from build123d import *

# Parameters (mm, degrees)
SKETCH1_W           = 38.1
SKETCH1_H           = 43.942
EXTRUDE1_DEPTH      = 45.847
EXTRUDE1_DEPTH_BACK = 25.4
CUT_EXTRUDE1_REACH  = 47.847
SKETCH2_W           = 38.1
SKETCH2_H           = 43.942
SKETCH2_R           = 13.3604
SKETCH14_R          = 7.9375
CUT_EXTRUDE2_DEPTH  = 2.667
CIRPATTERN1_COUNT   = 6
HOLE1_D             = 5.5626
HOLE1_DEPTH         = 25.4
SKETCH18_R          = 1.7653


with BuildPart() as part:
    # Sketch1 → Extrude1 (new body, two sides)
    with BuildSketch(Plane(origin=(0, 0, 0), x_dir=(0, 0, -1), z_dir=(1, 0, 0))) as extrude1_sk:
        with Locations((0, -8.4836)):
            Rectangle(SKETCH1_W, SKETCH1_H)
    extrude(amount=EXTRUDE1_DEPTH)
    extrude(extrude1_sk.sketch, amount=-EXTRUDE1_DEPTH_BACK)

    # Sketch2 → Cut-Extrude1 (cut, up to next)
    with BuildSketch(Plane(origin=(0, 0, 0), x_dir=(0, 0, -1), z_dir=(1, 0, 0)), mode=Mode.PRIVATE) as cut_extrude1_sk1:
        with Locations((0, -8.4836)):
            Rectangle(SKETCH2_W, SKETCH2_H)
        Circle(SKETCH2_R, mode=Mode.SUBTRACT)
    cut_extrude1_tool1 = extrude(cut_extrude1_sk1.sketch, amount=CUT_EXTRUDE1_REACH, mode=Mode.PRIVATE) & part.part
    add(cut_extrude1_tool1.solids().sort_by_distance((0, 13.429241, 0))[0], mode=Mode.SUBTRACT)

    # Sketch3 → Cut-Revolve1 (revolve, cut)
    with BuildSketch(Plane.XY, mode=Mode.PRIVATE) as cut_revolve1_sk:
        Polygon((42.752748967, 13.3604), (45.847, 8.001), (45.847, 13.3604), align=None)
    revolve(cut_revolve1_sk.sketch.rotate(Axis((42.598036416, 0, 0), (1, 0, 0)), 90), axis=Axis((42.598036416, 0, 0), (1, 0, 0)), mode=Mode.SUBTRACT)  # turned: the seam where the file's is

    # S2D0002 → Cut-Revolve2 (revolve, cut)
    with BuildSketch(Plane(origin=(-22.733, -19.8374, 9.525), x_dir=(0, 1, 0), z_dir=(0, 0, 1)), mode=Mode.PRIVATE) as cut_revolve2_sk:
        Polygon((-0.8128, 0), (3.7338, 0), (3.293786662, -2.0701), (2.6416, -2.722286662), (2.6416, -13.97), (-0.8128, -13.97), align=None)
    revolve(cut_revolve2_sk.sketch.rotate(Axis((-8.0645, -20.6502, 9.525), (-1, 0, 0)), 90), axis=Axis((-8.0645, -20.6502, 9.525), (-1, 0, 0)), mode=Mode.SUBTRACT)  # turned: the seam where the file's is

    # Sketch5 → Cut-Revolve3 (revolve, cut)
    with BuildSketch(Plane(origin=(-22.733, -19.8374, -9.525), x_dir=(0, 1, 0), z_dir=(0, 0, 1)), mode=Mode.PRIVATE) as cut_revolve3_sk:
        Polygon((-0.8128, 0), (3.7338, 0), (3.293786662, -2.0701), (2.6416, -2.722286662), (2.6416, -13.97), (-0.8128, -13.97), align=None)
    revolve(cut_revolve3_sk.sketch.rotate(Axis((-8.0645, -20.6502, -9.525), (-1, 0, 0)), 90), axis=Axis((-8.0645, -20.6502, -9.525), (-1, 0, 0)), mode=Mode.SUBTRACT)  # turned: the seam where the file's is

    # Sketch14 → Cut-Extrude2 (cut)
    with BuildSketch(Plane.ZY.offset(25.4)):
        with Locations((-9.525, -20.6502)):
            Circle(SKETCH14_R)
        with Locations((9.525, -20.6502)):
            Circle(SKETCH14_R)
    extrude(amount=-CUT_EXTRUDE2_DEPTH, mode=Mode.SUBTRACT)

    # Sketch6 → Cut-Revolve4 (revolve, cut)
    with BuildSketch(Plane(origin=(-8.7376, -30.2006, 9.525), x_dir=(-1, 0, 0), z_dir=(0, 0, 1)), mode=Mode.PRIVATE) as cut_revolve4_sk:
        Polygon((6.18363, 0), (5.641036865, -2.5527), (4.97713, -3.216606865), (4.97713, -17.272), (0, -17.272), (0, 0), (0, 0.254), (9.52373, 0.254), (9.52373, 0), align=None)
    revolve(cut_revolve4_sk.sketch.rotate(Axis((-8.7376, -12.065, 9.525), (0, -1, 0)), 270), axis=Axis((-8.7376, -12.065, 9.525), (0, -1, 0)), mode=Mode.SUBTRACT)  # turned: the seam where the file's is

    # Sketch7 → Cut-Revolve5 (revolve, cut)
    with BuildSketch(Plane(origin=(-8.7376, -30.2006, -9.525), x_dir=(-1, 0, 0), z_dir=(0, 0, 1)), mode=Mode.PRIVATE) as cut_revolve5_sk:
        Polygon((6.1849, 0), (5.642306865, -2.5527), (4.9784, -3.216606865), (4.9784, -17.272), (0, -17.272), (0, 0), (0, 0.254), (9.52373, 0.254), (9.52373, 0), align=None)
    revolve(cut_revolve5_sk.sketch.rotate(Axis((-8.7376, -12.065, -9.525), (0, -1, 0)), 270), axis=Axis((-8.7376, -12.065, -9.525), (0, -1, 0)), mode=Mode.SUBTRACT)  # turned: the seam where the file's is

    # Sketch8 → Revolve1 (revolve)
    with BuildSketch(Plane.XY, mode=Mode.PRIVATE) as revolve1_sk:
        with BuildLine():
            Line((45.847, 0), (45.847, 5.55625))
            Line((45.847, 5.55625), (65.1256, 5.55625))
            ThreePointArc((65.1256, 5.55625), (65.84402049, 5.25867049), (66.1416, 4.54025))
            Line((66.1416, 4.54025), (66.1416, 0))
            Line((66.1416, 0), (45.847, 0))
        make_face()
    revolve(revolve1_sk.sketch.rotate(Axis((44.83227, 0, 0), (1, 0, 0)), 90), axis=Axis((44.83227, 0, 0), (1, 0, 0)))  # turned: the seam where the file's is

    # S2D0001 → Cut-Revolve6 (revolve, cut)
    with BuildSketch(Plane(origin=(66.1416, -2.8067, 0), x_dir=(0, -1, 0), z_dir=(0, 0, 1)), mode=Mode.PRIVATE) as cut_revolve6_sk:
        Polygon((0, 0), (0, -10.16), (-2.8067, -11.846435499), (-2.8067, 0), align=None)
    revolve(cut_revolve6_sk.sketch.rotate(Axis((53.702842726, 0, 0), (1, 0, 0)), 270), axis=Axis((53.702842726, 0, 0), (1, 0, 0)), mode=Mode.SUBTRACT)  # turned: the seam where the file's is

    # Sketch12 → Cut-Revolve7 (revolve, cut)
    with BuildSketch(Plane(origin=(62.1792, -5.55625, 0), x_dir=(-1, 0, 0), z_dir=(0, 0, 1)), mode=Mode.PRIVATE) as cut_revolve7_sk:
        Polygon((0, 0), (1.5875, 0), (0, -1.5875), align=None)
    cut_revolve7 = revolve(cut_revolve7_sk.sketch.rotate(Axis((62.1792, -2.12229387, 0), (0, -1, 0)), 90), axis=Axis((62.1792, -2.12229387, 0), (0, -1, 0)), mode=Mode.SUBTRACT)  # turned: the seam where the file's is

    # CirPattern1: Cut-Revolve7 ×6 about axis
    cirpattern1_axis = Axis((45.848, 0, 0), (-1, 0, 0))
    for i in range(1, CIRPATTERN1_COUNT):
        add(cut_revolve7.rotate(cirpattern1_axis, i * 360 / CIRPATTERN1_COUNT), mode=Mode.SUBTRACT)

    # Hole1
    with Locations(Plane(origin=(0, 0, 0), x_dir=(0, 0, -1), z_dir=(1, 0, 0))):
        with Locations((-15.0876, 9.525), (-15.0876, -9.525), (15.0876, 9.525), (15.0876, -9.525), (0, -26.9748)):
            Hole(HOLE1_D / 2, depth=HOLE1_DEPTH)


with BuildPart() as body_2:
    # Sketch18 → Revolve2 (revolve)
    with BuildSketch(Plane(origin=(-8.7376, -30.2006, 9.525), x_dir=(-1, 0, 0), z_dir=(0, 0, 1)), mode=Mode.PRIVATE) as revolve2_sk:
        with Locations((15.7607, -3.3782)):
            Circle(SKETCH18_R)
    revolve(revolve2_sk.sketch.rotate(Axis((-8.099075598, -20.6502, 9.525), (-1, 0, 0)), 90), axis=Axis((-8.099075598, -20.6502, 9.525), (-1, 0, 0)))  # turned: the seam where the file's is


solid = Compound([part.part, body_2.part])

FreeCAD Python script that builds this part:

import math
import FreeCAD as App
import Part
import Sketcher

V = App.Vector
Q = App.Units.Quantity

doc = App.newDocument("Part")
body = doc.addObject("PartDesign::Body", "Body")

# Sketch on YZ plane
sketch1 = doc.addObject("Sketcher::SketchObject", "Sketch")
body.addObject(sketch1)
sketch1.AttachmentSupport = (doc.YZ_Plane, [""])
sketch1.MapMode = "FlatFace"
sketch1.addGeometry([
    Part.LineSegment(V(13, 19, 0), V(-30, 19, 0)),
    Part.LineSegment(V(-30, 19, 0), V(-30, -19, 0)),
    Part.LineSegment(V(-30, -19, 0), V(13, -19, 0)),
    Part.LineSegment(V(13, -19, 0), V(13, 19, 0)),
], False)
sketch1.addConstraint([
    Sketcher.Constraint("Coincident", 0, 2, 1, 1),
    Sketcher.Constraint("Coincident", 1, 2, 2, 1),
    Sketcher.Constraint("Coincident", 2, 2, 3, 1),
    Sketcher.Constraint("Coincident", 3, 2, 0, 1),
    Sketcher.Constraint("Horizontal", 0),
    Sketcher.Constraint("Vertical", 1),
    Sketcher.Constraint("Horizontal", 2),
    Sketcher.Constraint("Vertical", 3),
    Sketcher.Constraint("DistanceY", 1, 2, 1, 1, Q("1.5 in")),
    Sketcher.Constraint("DistanceX", 0, 2, 0, 1, Q("1.73 in")),
    Sketcher.Constraint("DistanceY", -1, 1, 0, 2, Q("0.75 in")),
    Sketcher.Constraint("DistanceX", 0, 2, -1, 1, Q("1.199 in")),
])
pad1 = doc.addObject("PartDesign::Pad", "Pad")
body.addObject(pad1)
pad1.Profile = sketch1
pad1.Type = "TwoLengths"
pad1.Length = Q("1.805 in")
pad1.Length2 = Q("1 in")

# Sketch on YZ plane
sketch2 = doc.addObject("Sketcher::SketchObject", "Sketch001")
body.addObject(sketch2)
sketch2.AttachmentSupport = (doc.YZ_Plane, [""])
sketch2.MapMode = "FlatFace"
sketch2.addGeometry([
    Part.LineSegment(V(13, 19, 0), V(-30, 19, 0)),  # 0
    Part.LineSegment(V(-30, 19, 0), V(-30, -19, 0)),  # 1
    Part.LineSegment(V(-30, -19, 0), V(13, -19, 0)),  # 2
    Part.LineSegment(V(13, -19, 0), V(13, 19, 0)),  # 3
    Part.Circle(V(0, 0, 0), V(0, 0, 1), 13),  # 4
], False)
sketch2.addConstraint([
    Sketcher.Constraint("Coincident", 0, 2, 1, 1),
    Sketcher.Constraint("Coincident", 1, 2, 2, 1),
    Sketcher.Constraint("Coincident", 2, 2, 3, 1),
    Sketcher.Constraint("Coincident", 3, 2, 0, 1),
    Sketcher.Constraint("Horizontal", 0),
    Sketcher.Constraint("Vertical", 1),
    Sketcher.Constraint("Horizontal", 2),
    Sketcher.Constraint("Vertical", 3),
    Sketcher.Constraint("Coincident", 4, 3, -1, 1),
    Sketcher.Constraint("Diameter", 4, Q("1.052 in")),
    Sketcher.Constraint("DistanceY", 1, 2, 1, 1, Q("1.5 in")),
    Sketcher.Constraint("DistanceX", 0, 2, 0, 1, Q("1.73 in")),
    Sketcher.Constraint("DistanceY", -1, 1, 0, 2, Q("0.75 in")),
    Sketcher.Constraint("DistanceX", 0, 2, -1, 1, Q("1.199 in")),
])
pocket1 = doc.addObject("PartDesign::Pocket", "Pocket")
body.addObject(pocket1)
pocket1.Profile = sketch2
pocket1.Type = "UpToFirst"
pocket1.Reversed = True

# Sketch on XY plane
sketch3 = doc.addObject("Sketcher::SketchObject", "Sketch002")
body.addObject(sketch3)
sketch3.AttachmentSupport = (doc.XY_Plane, [""])
sketch3.MapMode = "FlatFace"
sketch3.addGeometry([
    Part.LineSegment(V(42.8, 13.4, 0), V(45.8, 8, 0)),
    Part.LineSegment(V(45.8, 8, 0), V(45.8, 13.4, 0)),
    Part.LineSegment(V(45.8, 13.4, 0), V(42.8, 13.4, 0)),
], False)
sketch3.addConstraint([
    Sketcher.Constraint("Coincident", 0, 2, 1, 1),
    Sketcher.Constraint("Coincident", 1, 2, 2, 1),
    Sketcher.Constraint("Coincident", 2, 2, 0, 1),
    Sketcher.Constraint("Vertical", 1),
    Sketcher.Constraint("Horizontal", 2),
    Sketcher.Constraint("Angle", 0, Q("-60 deg")),
    Sketcher.Constraint("DistanceY", 1, 1, 1, 2, Q("0.211 in")),
    Sketcher.Constraint("DistanceX", -1, 1, 0, 2, Q("1.805 in")),
    Sketcher.Constraint("DistanceY", -1, 1, 0, 2, Q("0.315 in")),
])
groove = doc.addObject("PartDesign::Groove", "Groove")
body.addObject(groove)
groove.Profile = sketch3
groove.ReferenceAxis = (sketch3, ["H_Axis"])
groove.Angle = 360

# Sketch on XY plane
sketch4 = doc.addObject("Sketcher::SketchObject", "Sketch003")
body.addObject(sketch4)
sketch4.AttachmentSupport = (doc.XY_Plane, [""])
sketch4.MapMode = "FlatFace"
sketch4.AttachmentOffset = App.Placement(V(0, 0, 0.375 * 25.4), App.Rotation())
sketch4.addGeometry([
    Part.LineSegment(V(-22.7, -16.1, 0), V(-22.7, -20.7, 0)),  # 0
    Part.LineSegment(V(-22.7, -20.7, 0), V(-8.8, -20.7, 0)),  # 1
    Part.LineSegment(V(-8.8, -20.7, 0), V(-8.8, -17.2, 0)),  # 2
    Part.LineSegment(V(-8.8, -17.2, 0), V(-20, -17.2, 0)),  # 3
    Part.LineSegment(V(-20, -17.2, 0), V(-20.7, -16.5, 0)),  # 4
    Part.LineSegment(V(-20.7, -16.5, 0), V(-22.7, -16.1, 0)),  # 5
], False)
sketch4.addGeometry(Part.LineSegment(V(-8.8, -20.7, 0), V(-22.7, -20.7, 0)), True)  # axis
sketch4.addConstraint([
    Sketcher.Constraint("Coincident", 0, 2, 1, 1),
    Sketcher.Constraint("Coincident", 1, 2, 2, 1),
    Sketcher.Constraint("Coincident", 2, 2, 3, 1),
    Sketcher.Constraint("Coincident", 3, 2, 4, 1),
    Sketcher.Constraint("Coincident", 4, 2, 5, 1),
    Sketcher.Constraint("Coincident", 5, 2, 0, 1),
    Sketcher.Constraint("Vertical", 0),
    Sketcher.Constraint("Horizontal", 1),
    Sketcher.Constraint("Vertical", 2),
    Sketcher.Constraint("Horizontal", 3),
    Sketcher.Constraint("Horizontal", 6),
    Sketcher.Constraint("Coincident", 6, 1, 1, 2),
    Sketcher.Constraint("Vertical", 5, 2, 6, 2),
    Sketcher.Constraint("Angle", 4, Q("135 deg")),
    Sketcher.Constraint("Angle", 5, Q("168 deg")),
    Sketcher.Constraint("DistanceX", 1, 1, 1, 2, Q("0.55 in")),
    Sketcher.Constraint("DistanceY", 0, 2, 0, 1, Q("0.179 in")),
    Sketcher.Constraint("DistanceY", 2, 1, 2, 2, Q("0.136 in")),
    Sketcher.Constraint("DistanceX", 0, 2, -1, 1, Q("0.895 in")),
    Sketcher.Constraint("DistanceY", 0, 2, -1, 1, Q("0.813 in")),
    Sketcher.Constraint("DistanceX", 4, 2, -1, 1, Q("0.8135 in")),
])
groove2 = doc.addObject("PartDesign::Groove", "Groove001")
body.addObject(groove2)
groove2.Profile = sketch4
groove2.ReferenceAxis = (sketch4, ["Axis0"])
groove2.Angle = 360

# Sketch on XY plane
sketch5 = doc.addObject("Sketcher::SketchObject", "Sketch004")
body.addObject(sketch5)
sketch5.AttachmentSupport = (doc.XY_Plane, [""])
sketch5.MapMode = "FlatFace"
sketch5.AttachmentOffset = App.Placement(V(0, 0, -0.375 * 25.4), App.Rotation())
sketch5.addGeometry([
    Part.LineSegment(V(-22.7, -16.1, 0), V(-22.7, -20.7, 0)),  # 0
    Part.LineSegment(V(-22.7, -20.7, 0), V(-8.8, -20.7, 0)),  # 1
    Part.LineSegment(V(-8.8, -20.7, 0), V(-8.8, -17.2, 0)),  # 2
    Part.LineSegment(V(-8.8, -17.2, 0), V(-20, -17.2, 0)),  # 3
    Part.LineSegment(V(-20, -17.2, 0), V(-20.7, -16.5, 0)),  # 4
    Part.LineSegment(V(-20.7, -16.5, 0), V(-22.7, -16.1, 0)),  # 5
], False)
sketch5.addGeometry(Part.LineSegment(V(-8.8, -20.7, 0), V(-22.7, -20.7, 0)), True)  # axis
sketch5.addConstraint([
    Sketcher.Constraint("Coincident", 0, 2, 1, 1),
    Sketcher.Constraint("Coincident", 1, 2, 2, 1),
    Sketcher.Constraint("Coincident", 2, 2, 3, 1),
    Sketcher.Constraint("Coincident", 3, 2, 4, 1),
    Sketcher.Constraint("Coincident", 4, 2, 5, 1),
    Sketcher.Constraint("Coincident", 5, 2, 0, 1),
    Sketcher.Constraint("Vertical", 0),
    Sketcher.Constraint("Horizontal", 1),
    Sketcher.Constraint("Vertical", 2),
    Sketcher.Constraint("Horizontal", 3),
    Sketcher.Constraint("Horizontal", 6),
    Sketcher.Constraint("Coincident", 6, 1, 1, 2),
    Sketcher.Constraint("Vertical", 5, 2, 6, 2),
    Sketcher.Constraint("Angle", 4, Q("135 deg")),
    Sketcher.Constraint("Angle", 5, Q("168 deg")),
    Sketcher.Constraint("DistanceX", 1, 1, 1, 2, Q("0.55 in")),
    Sketcher.Constraint("DistanceY", 0, 2, 0, 1, Q("0.179 in")),
    Sketcher.Constraint("DistanceY", 2, 1, 2, 2, Q("0.136 in")),
    Sketcher.Constraint("DistanceX", 0, 2, -1, 1, Q("0.895 in")),
    Sketcher.Constraint("DistanceY", 0, 2, -1, 1, Q("0.813 in")),
    Sketcher.Constraint("DistanceX", 4, 2, -1, 1, Q("0.8135 in")),
])
groove3 = doc.addObject("PartDesign::Groove", "Groove002")
body.addObject(groove3)
groove3.Profile = sketch5
groove3.ReferenceAxis = (sketch5, ["Axis0"])
groove3.Angle = 360

# Sketch on YZ plane
sketch6 = doc.addObject("Sketcher::SketchObject", "Sketch005")
body.addObject(sketch6)
sketch6.AttachmentSupport = (doc.YZ_Plane, [""])
sketch6.MapMode = "FlatFace"
sketch6.AttachmentOffset = App.Placement(V(0, 0, -1 * 25.4), App.Rotation())
sketch6.addGeometry([
    Part.Circle(V(-21, -10, 0), V(0, 0, 1), 8),
    Part.Circle(V(-21, 10, 0), V(0, 0, 1), 8),
], False)
sketch6.addConstraint([
    Sketcher.Constraint("Equal", 0, 1),
    Sketcher.Constraint("Symmetric", 0, 3, 1, 3, -1),
    Sketcher.Constraint("Diameter", 0, Q("0.625 in")),
    Sketcher.Constraint("DistanceY", 0, 3, 1, 3, Q("0.75 in")),
    Sketcher.Constraint("DistanceX", 0, 3, -1, 1, Q("0.813 in")),
])
pocket2 = doc.addObject("PartDesign::Pocket", "Pocket001")
body.addObject(pocket2)
pocket2.Profile = sketch6
pocket2.Length = Q("0.105 in")
pocket2.Reversed = True

# Sketch on XY plane
sketch7 = doc.addObject("Sketcher::SketchObject", "Sketch006")
body.addObject(sketch7)
sketch7.AttachmentSupport = (doc.XY_Plane, [""])
sketch7.MapMode = "FlatFace"
sketch7.AttachmentOffset = App.Placement(V(0, 0, 0.375 * 25.4), App.Rotation())
sketch7.addGeometry([
    Part.LineSegment(V(-14.38, -27.65, 0), V(-14.92, -30.2, 0)),  # 0
    Part.LineSegment(V(-14.92, -30.2, 0), V(-18.26, -30.2, 0)),  # 1
    Part.LineSegment(V(-18.26, -30.2, 0), V(-18.26, -30.45, 0)),  # 2
    Part.LineSegment(V(-18.26, -30.45, 0), V(-8.74, -30.45, 0)),  # 3
    Part.LineSegment(V(-8.74, -30.45, 0), V(-8.74, -12.93, 0)),  # 4
    Part.LineSegment(V(-8.74, -12.93, 0), V(-13.71, -12.93, 0)),  # 5
    Part.LineSegment(V(-13.71, -12.93, 0), V(-13.71, -26.98, 0)),  # 6
    Part.LineSegment(V(-13.71, -26.98, 0), V(-14.38, -27.65, 0)),  # 7
], False)
sketch7.addGeometry(Part.LineSegment(V(-8.74, -12.93, 0), V(-8.74, -30.45, 0)), True)  # axis
sketch7.addConstraint([
    Sketcher.Constraint("Coincident", 0, 2, 1, 1),
    Sketcher.Constraint("Coincident", 1, 2, 2, 1),
    Sketcher.Constraint("Coincident", 2, 2, 3, 1),
    Sketcher.Constraint("Coincident", 3, 2, 4, 1),
    Sketcher.Constraint("Coincident", 4, 2, 5, 1),
    Sketcher.Constraint("Coincident", 5, 2, 6, 1),
    Sketcher.Constraint("Coincident", 6, 2, 7, 1),
    Sketcher.Constraint("Coincident", 7, 2, 0, 1),
    Sketcher.Constraint("Horizontal", 1),
    Sketcher.Constraint("Vertical", 2),
    Sketcher.Constraint("Horizontal", 3),
    Sketcher.Constraint("Vertical", 4),
    Sketcher.Constraint("Horizontal", 5),
    Sketcher.Constraint("Vertical", 6),
    Sketcher.Constraint("Vertical", 8),
    Sketcher.Constraint("Coincident", 8, 1, 4, 2),
    Sketcher.Constraint("Horizontal", 2, 2, 8, 2),
    Sketcher.Constraint("Angle", 0, Q("-102 deg")),
    Sketcher.Constraint("Angle", 7, Q("-135 deg")),
    Sketcher.Constraint("DistanceY", 2, 2, 2, 1, Q("0.01 in")),
    Sketcher.Constraint("DistanceY", 4, 1, 4, 2, Q("0.69 in")),
    Sketcher.Constraint("DistanceX", 1, 2, 1, 1, Q("0.1315 in")),
    Sketcher.Constraint("DistanceY", 0, 2, -1, 1, Q("1.189 in")),
    Sketcher.Constraint("DistanceX", 3, 2, -1, 1, Q("0.344 in")),
    Sketcher.Constraint("DistanceX", 1, 2, 5, 2, Q("0.179 in")),
    Sketcher.Constraint("DistanceY", 7, 2, -1, 1, Q("1.0885 in")),
    Sketcher.Constraint("DistanceX", 3, 1, 3, 2, 9.52373),
])
groove4 = doc.addObject("PartDesign::Groove", "Groove003")
body.addObject(groove4)
groove4.Profile = sketch7
groove4.ReferenceAxis = (sketch7, ["Axis0"])
groove4.Angle = 360

# Sketch on XY plane
sketch8 = doc.addObject("Sketcher::SketchObject", "Sketch007")
body.addObject(sketch8)
sketch8.AttachmentSupport = (doc.XY_Plane, [""])
sketch8.MapMode = "FlatFace"
sketch8.AttachmentOffset = App.Placement(V(0, 0, -0.375 * 25.4), App.Rotation())
sketch8.addGeometry([
    Part.LineSegment(V(-14.38, -27.65, 0), V(-14.92, -30.2, 0)),  # 0
    Part.LineSegment(V(-14.92, -30.2, 0), V(-18.26, -30.2, 0)),  # 1
    Part.LineSegment(V(-18.26, -30.2, 0), V(-18.26, -30.45, 0)),  # 2
    Part.LineSegment(V(-18.26, -30.45, 0), V(-8.74, -30.45, 0)),  # 3
    Part.LineSegment(V(-8.74, -30.45, 0), V(-8.74, -12.93, 0)),  # 4
    Part.LineSegment(V(-8.74, -12.93, 0), V(-13.72, -12.93, 0)),  # 5
    Part.LineSegment(V(-13.72, -12.93, 0), V(-13.72, -26.98, 0)),  # 6
    Part.LineSegment(V(-13.72, -26.98, 0), V(-14.38, -27.65, 0)),  # 7
], False)
sketch8.addGeometry(Part.LineSegment(V(-8.74, -12.93, 0), V(-8.74, -30.45, 0)), True)  # axis
sketch8.addConstraint([
    Sketcher.Constraint("Coincident", 0, 2, 1, 1),
    Sketcher.Constraint("Coincident", 1, 2, 2, 1),
    Sketcher.Constraint("Coincident", 2, 2, 3, 1),
    Sketcher.Constraint("Coincident", 3, 2, 4, 1),
    Sketcher.Constraint("Coincident", 4, 2, 5, 1),
    Sketcher.Constraint("Coincident", 5, 2, 6, 1),
    Sketcher.Constraint("Coincident", 6, 2, 7, 1),
    Sketcher.Constraint("Coincident", 7, 2, 0, 1),
    Sketcher.Constraint("Horizontal", 1),
    Sketcher.Constraint("Vertical", 2),
    Sketcher.Constraint("Horizontal", 3),
    Sketcher.Constraint("Vertical", 4),
    Sketcher.Constraint("Horizontal", 5),
    Sketcher.Constraint("Vertical", 6),
    Sketcher.Constraint("Vertical", 8),
    Sketcher.Constraint("Coincident", 8, 1, 4, 2),
    Sketcher.Constraint("Horizontal", 2, 2, 8, 2),
    Sketcher.Constraint("Angle", 0, Q("-102 deg")),
    Sketcher.Constraint("Angle", 7, Q("-135 deg")),
    Sketcher.Constraint("DistanceY", 2, 2, 2, 1, Q("0.01 in")),
    Sketcher.Constraint("DistanceY", 4, 1, 4, 2, Q("0.69 in")),
    Sketcher.Constraint("DistanceX", 5, 2, 5, 1, Q("0.196 in")),
    Sketcher.Constraint("DistanceX", 5, 2, -1, 1, Q("0.54 in")),
    Sketcher.Constraint("DistanceY", 0, 2, -1, 1, Q("1.189 in")),
    Sketcher.Constraint("DistanceX", 0, 2, -1, 1, Q("0.5875 in")),
    Sketcher.Constraint("DistanceY", 7, 2, -1, 1, Q("1.0885 in")),
    Sketcher.Constraint("DistanceX", 1, 2, 1, 1, 3.33883),
])
groove5 = doc.addObject("PartDesign::Groove", "Groove004")
body.addObject(groove5)
groove5.Profile = sketch8
groove5.ReferenceAxis = (sketch8, ["Axis0"])
groove5.Angle = 360

# Sketch on XY plane
sketch9 = doc.addObject("Sketcher::SketchObject", "Sketch008")
body.addObject(sketch9)
sketch9.AttachmentSupport = (doc.XY_Plane, [""])
sketch9.MapMode = "FlatFace"
sketch9.addGeometry([
    Part.LineSegment(V(45.8, 5.6, 0), V(45.8, 0, 0)),  # 0
    Part.LineSegment(V(45.8, 0, 0), V(66.1, 0, 0)),  # 1
    Part.LineSegment(V(66.1, 0, 0), V(66.1, 4.5, 0)),  # 2
    Part.ArcOfCircle(Part.Circle(V(65.1, 4.5, 0), V(0, 0, 1), 1), math.radians(0), math.radians(90)),  # 3
    Part.LineSegment(V(65.1, 5.6, 0), V(45.8, 5.6, 0)),  # 4
], False)
sketch9.addConstraint([
    Sketcher.Constraint("Coincident", 0, 2, 1, 1),
    Sketcher.Constraint("Coincident", 1, 2, 2, 1),
    Sketcher.Constraint("Tangent", 2, 2, 3, 1),
    Sketcher.Constraint("Tangent", 3, 2, 4, 1),
    Sketcher.Constraint("Coincident", 4, 2, 0, 1),
    Sketcher.Constraint("Vertical", 0),
    Sketcher.Constraint("Horizontal", 1),
    Sketcher.Constraint("Vertical", 2),
    Sketcher.Constraint("Horizontal", 4),
    Sketcher.Constraint("PointOnObject", 0, 2, -1),
    Sketcher.Constraint("Radius", 3, Q("0.04 in")),
    Sketcher.Constraint("DistanceX", 1, 1, 1, 2, Q("0.799 in")),
    Sketcher.Constraint("DistanceY", 0, 2, 0, 1, Q("0.21875 in")),
    Sketcher.Constraint("DistanceX", -1, 1, 3, 3, Q("2.564 in")),
])
revolution = doc.addObject("PartDesign::Revolution", "Revolution")
body.addObject(revolution)
revolution.Profile = sketch9
revolution.ReferenceAxis = (sketch9, ["H_Axis"])
revolution.Angle = 360

# Sketch on XY plane
sketch10 = doc.addObject("Sketcher::SketchObject", "Sketch009")
body.addObject(sketch10)
sketch10.AttachmentSupport = (doc.XY_Plane, [""])
sketch10.MapMode = "FlatFace"
sketch10.addGeometry([
    Part.LineSegment(V(56, -2.8, 0), V(66.1, -2.8, 0)),
    Part.LineSegment(V(66.1, -2.8, 0), V(66.1, 0, 0)),
    Part.LineSegment(V(66.1, 0, 0), V(54.3, 0, 0)),
    Part.LineSegment(V(54.3, 0, 0), V(56, -2.8, 0)),
], False)
sketch10.addConstraint([
    Sketcher.Constraint("Coincident", 0, 2, 1, 1),
    Sketcher.Constraint("Coincident", 1, 2, 2, 1),
    Sketcher.Constraint("Coincident", 2, 2, 3, 1),
    Sketcher.Constraint("Coincident", 3, 2, 0, 1),
    Sketcher.Constraint("Horizontal", 0),
    Sketcher.Constraint("Vertical", 1),
    Sketcher.Constraint("Horizontal", 2),
    Sketcher.Constraint("PointOnObject", 1, 2, -1),
    Sketcher.Constraint("DistanceX", 0, 1, 0, 2, Q("0.4 in")),
    Sketcher.Constraint("Angle", 3, Q("-59 deg")),
    Sketcher.Constraint("DistanceY", 1, 1, 1, 2, Q("0.1105 in")),
    Sketcher.Constraint("DistanceX", -1, 1, 0, 2, Q("2.604 in")),
])
groove6 = doc.addObject("PartDesign::Groove", "Groove005")
body.addObject(groove6)
groove6.Profile = sketch10
groove6.ReferenceAxis = (sketch10, ["H_Axis"])
groove6.Angle = 360

# Sketch on XY plane
sketch11 = doc.addObject("Sketcher::SketchObject", "Sketch010")
body.addObject(sketch11)
sketch11.AttachmentSupport = (doc.XY_Plane, [""])
sketch11.MapMode = "FlatFace"
sketch11.addGeometry([
    Part.LineSegment(V(60.6, -5.6, 0), V(62.2, -5.6, 0)),
    Part.LineSegment(V(62.2, -5.6, 0), V(62.2, -4, 0)),
    Part.LineSegment(V(62.2, -4, 0), V(60.6, -5.6, 0)),
], False)
sketch11.addGeometry(Part.LineSegment(V(62.2, -4, 0), V(62.2, -5.6, 0)), True)  # axis
sketch11.addConstraint([
    Sketcher.Constraint("Coincident", 0, 2, 1, 1),
    Sketcher.Constraint("Coincident", 1, 2, 2, 1),
    Sketcher.Constraint("Coincident", 2, 2, 0, 1),
    Sketcher.Constraint("Horizontal", 0),
    Sketcher.Constraint("Vertical", 1),
    Sketcher.Constraint("Vertical", 3),
    Sketcher.Constraint("Coincident", 3, 1, 1, 2),
    Sketcher.Constraint("Horizontal", 2, 2, 3, 2),
    Sketcher.Constraint("Equal", 0, 1),
    Sketcher.Constraint("DistanceX", 0, 1, 0, 2, Q("0.0625 in")),
    Sketcher.Constraint("DistanceX", -1, 1, 0, 2, Q("2.448 in")),
    Sketcher.Constraint("DistanceY", 0, 2, -1, 1, Q("0.21875 in")),
])
groove7 = doc.addObject("PartDesign::Groove", "Groove006")
body.addObject(groove7)
groove7.Profile = sketch11
groove7.ReferenceAxis = (sketch11, ["Axis0"])
groove7.Angle = 360
doc.recompute()

polarpattern = doc.addObject("PartDesign::PolarPattern", "PolarPattern")
body.addObject(polarpattern)
polarpattern.Originals = [groove7]
polarpattern.Axis = (doc.X_Axis, [""])
polarpattern.Angle = 360
polarpattern.Occurrences = 6
body.Tip = polarpattern

# Sketch on YZ plane
sketch12 = doc.addObject("Sketcher::SketchObject", "Sketch011")
body.addObject(sketch12)
sketch12.AttachmentSupport = (doc.YZ_Plane, [""])
sketch12.MapMode = "FlatFace"
sketch12.addGeometry([
    Part.Circle(V(9.5, 15.1, 0), V(0, 0, 1), 2.8),  # 0
    Part.Circle(V(-9.5, 15.1, 0), V(0, 0, 1), 2.8),  # 1
    Part.Circle(V(9.5, -15.1, 0), V(0, 0, 1), 2.8),  # 2
    Part.Circle(V(-9.5, -15.1, 0), V(0, 0, 1), 2.8),  # 3
    Part.Circle(V(-27, 0, 0), V(0, 0, 1), 2.8),  # 4
], False)
sketch12.addConstraint([
    Sketcher.Constraint("Equal", 0, 1),
    Sketcher.Constraint("Equal", 1, 2),
    Sketcher.Constraint("Equal", 2, 3),
    Sketcher.Constraint("Equal", 3, 4),
    Sketcher.Constraint("Symmetric", 1, 3, 2, 3, -1, 1),
    Sketcher.Constraint("Symmetric", 0, 3, 3, 3, -1, 1),
    Sketcher.Constraint("Symmetric", 0, 3, 1, 3, -2),
    Sketcher.Constraint("PointOnObject", 4, 3, -1),
    Sketcher.Constraint("Diameter", 0, Q("0.219 in")),
    Sketcher.Constraint("DistanceX", 1, 3, 0, 3, Q("0.75 in")),
    Sketcher.Constraint("DistanceY", -1, 1, 0, 3, Q("0.594 in")),
    Sketcher.Constraint("DistanceX", 4, 3, -1, 1, Q("1.062 in")),
])
doc.recompute()
hole = doc.addObject("PartDesign::Hole", "Hole")
body.addObject(hole)
hole.Profile = sketch12
hole.ThreadType = "None"
hole.Diameter = Q("0.219 in")
hole.DepthType = "Dimension"
hole.Depth = Q("1 in")
hole.DrillPoint = "Flat"
body2 = doc.addObject("PartDesign::Body", "Body001")

# Sketch on XY plane
sketch13 = doc.addObject("Sketcher::SketchObject", "Sketch012")
body2.addObject(sketch13)
sketch13.AttachmentSupport = (doc.getObject("XY_Plane001"), [""])
sketch13.MapMode = "FlatFace"
sketch13.AttachmentOffset = App.Placement(V(0, 0, 0.375 * 25.4), App.Rotation())
sketch13.addGeometry(Part.Circle(V(-24.5, -26.8, 0), V(0, 0, 1), 1.8), False)
sketch13.addGeometry(Part.LineSegment(V(-24.5, -20.7, 0), V(-34.5, -20.7, 0)), True)  # axis
sketch13.addConstraint([
    Sketcher.Constraint("Horizontal", 1),
    Sketcher.Constraint("Vertical", 0, 3, 1, 1),
    Sketcher.Constraint("Diameter", 0, Q("0.139 in")),
    Sketcher.Constraint("DistanceY", 0, 3, -1, 1, Q("1.056 in")),
    Sketcher.Constraint("DistanceY", 1, 1, -1, 1, Q("0.813 in")),
    Sketcher.Constraint("DistanceX", 1, 2, 1, 1, 10.0),
    Sketcher.Constraint("DistanceX", 0, 3, -1, 1, Q("0.9645 in")),
])
revolution2 = doc.addObject("PartDesign::Revolution", "Revolution001")
body2.addObject(revolution2)
revolution2.Profile = sketch13
revolution2.ReferenceAxis = (sketch13, ["Axis0"])
revolution2.Angle = 360

doc.recompute()
